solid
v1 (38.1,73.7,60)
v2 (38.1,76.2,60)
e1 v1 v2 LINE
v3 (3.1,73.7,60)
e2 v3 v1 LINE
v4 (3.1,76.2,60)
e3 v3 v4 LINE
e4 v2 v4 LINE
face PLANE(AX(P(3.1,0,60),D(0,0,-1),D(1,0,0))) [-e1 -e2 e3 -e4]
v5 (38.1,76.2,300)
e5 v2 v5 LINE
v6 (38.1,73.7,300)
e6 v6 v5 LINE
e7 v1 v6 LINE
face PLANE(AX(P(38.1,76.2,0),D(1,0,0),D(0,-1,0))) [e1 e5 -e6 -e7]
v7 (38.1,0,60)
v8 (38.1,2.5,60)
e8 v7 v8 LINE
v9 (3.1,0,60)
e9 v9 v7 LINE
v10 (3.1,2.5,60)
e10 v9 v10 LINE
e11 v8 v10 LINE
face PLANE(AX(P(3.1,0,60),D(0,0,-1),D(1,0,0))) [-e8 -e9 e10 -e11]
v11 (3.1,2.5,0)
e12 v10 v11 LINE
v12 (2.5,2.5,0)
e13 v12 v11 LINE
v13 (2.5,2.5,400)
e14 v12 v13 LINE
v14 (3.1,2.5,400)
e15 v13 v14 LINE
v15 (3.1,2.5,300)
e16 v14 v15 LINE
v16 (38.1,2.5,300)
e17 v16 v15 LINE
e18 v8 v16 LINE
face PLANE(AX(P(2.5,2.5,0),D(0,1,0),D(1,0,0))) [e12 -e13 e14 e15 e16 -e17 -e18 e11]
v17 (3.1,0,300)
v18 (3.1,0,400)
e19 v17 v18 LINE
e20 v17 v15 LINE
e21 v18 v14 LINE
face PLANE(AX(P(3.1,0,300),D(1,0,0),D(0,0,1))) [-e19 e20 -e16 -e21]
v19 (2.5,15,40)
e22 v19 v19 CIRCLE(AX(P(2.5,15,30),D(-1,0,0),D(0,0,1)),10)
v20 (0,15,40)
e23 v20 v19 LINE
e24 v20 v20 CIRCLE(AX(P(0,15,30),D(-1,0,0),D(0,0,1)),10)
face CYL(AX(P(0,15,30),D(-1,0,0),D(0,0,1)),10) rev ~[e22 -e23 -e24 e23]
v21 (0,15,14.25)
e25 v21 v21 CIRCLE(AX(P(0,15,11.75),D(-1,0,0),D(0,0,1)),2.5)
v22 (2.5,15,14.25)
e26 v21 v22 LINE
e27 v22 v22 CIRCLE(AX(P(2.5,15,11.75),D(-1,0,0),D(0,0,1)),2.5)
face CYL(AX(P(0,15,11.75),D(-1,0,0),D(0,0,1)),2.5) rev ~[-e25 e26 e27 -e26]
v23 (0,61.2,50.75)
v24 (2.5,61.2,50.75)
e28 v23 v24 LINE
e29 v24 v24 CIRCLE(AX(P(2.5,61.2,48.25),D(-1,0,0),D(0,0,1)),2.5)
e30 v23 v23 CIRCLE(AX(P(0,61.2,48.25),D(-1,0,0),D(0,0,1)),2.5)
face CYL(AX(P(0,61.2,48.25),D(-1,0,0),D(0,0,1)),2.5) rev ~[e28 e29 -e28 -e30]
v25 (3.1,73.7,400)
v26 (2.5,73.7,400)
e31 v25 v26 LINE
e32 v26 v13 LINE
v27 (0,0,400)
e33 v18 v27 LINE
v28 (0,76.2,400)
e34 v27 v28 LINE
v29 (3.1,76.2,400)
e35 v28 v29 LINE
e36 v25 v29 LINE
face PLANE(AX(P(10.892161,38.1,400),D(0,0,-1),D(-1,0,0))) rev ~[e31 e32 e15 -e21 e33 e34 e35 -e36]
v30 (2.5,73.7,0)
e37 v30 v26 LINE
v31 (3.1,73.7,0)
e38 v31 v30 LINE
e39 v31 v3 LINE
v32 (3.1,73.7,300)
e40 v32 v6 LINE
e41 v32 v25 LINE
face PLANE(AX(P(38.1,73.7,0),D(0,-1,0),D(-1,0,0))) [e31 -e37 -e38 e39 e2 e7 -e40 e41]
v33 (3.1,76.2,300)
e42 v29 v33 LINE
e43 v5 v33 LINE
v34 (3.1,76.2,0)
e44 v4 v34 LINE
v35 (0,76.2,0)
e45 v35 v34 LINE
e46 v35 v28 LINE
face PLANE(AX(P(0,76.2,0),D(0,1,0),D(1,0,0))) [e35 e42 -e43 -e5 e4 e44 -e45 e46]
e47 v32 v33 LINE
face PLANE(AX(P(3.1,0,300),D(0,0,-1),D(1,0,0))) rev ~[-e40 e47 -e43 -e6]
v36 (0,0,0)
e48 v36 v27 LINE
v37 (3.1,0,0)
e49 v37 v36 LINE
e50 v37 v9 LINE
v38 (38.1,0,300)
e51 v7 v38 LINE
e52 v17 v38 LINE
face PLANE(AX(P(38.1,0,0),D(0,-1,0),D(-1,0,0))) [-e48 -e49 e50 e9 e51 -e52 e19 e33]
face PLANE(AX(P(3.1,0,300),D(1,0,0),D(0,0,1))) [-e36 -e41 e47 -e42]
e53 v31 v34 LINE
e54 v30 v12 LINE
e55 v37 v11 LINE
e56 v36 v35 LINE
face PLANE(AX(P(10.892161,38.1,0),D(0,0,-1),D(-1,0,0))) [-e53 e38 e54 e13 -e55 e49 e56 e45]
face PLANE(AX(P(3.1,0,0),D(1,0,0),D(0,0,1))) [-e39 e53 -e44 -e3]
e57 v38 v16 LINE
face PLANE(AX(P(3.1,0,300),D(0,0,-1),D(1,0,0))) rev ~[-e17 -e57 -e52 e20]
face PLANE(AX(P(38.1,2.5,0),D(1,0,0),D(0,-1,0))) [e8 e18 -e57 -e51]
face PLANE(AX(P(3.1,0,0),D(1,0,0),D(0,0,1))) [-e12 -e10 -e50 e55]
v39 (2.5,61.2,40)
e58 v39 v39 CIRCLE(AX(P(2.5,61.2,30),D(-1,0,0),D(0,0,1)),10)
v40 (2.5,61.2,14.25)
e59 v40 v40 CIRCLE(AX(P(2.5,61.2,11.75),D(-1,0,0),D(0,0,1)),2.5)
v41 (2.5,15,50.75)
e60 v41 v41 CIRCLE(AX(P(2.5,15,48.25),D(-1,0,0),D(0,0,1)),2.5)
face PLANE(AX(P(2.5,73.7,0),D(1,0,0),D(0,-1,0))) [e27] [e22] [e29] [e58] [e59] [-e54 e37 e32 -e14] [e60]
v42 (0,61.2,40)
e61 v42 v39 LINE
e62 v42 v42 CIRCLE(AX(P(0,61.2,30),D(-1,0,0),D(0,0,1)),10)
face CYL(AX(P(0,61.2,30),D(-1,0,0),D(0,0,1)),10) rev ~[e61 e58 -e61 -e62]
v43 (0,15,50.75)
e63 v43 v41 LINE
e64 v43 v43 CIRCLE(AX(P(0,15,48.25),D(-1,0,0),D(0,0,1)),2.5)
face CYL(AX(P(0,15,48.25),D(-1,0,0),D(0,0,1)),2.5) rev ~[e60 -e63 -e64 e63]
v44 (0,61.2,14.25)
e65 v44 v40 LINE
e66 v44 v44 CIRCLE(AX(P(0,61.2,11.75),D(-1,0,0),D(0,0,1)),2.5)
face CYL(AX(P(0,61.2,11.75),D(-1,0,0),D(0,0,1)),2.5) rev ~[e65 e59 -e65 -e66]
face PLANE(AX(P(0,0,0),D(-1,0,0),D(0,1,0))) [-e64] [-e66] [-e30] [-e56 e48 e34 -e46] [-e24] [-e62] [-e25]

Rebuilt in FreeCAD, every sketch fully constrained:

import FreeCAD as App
import Part
import Sketcher

V = App.Vector

doc = App.newDocument("Part")
params = doc.addObject("Spreadsheet::Sheet", "Params")
for row, (alias, value) in enumerate([
    ("sketch1_width", "38.1 mm"),
    ("sketch1_width2", "35.6 mm"),
    ("sketch1_height", "76.2 mm"),
    ("sketch1_height2", "2.5 mm"),
    ("pad1_length", "400 mm"),
    ("sketch2_diameter", "20 mm"),
    ("sketch2_diameter2", "5 mm"),
    ("sketch3_width", "35 mm"),
    ("sketch3_height", "60 mm"),
    ("sketch3_height2", "100 mm"),
], start=1):
    params.set(f"A{row}", alias)
    params.set(f"B{row}", "=" + value)
    params.setAlias(f"B{row}", alias)

body = doc.addObject("PartDesign::Body", "Body")

sketch1 = body.newObject("Sketcher::SketchObject", "Sketch")
sketch1.AttachmentSupport = (doc.getObject("XY_Plane"), [""])
sketch1.MapMode = "FlatFace"
sketch1.addGeometry([
    Part.LineSegment(V(0, 76.2, 0), V(0, 0, 0)),
    Part.LineSegment(V(0, 0, 0), V(38.1, 0, 0)),
    Part.LineSegment(V(38.1, 0, 0), V(38.1, 2.5, 0)),
    Part.LineSegment(V(38.1, 2.5, 0), V(2.5, 2.5, 0)),
    Part.LineSegment(V(2.5, 2.5, 0), V(2.5, 73.7, 0)),
    Part.LineSegment(V(2.5, 73.7, 0), V(38.1, 73.7, 0)),
    Part.LineSegment(V(38.1, 73.7, 0), V(38.1, 76.2, 0)),
    Part.LineSegment(V(38.1, 76.2, 0), V(0, 76.2, 0)),
], False)
sketch1.addConstraint([
    Sketcher.Constraint("Coincident", 0, 2, 1, 1),
    Sketcher.Constraint("Coincident", 1, 2, 2, 1),
    Sketcher.Constraint("Coincident", 2, 2, 3, 1),
    Sketcher.Constraint("Coincident", 3, 2, 4, 1),
    Sketcher.Constraint("Coincident", 4, 2, 5, 1),
    Sketcher.Constraint("Coincident", 5, 2, 6, 1),
    Sketcher.Constraint("Coincident", 6, 2, 7, 1),
    Sketcher.Constraint("Coincident", 7, 2, 0, 1),
    Sketcher.Constraint("Vertical", 0),
    Sketcher.Constraint("Horizontal", 1),
    Sketcher.Constraint("Vertical", 2),
    Sketcher.Constraint("Horizontal", 3),
    Sketcher.Constraint("Vertical", 4),
    Sketcher.Constraint("Horizontal", 5),
    Sketcher.Constraint("Vertical", 6),
    Sketcher.Constraint("Horizontal", 7),
    Sketcher.Constraint("Coincident", 0, 2, -1, 1),
    Sketcher.Constraint("Vertical", 2, 2, 5, 2),
    Sketcher.Constraint("Equal", 2, 6),
    Sketcher.Constraint("DistanceX", 1, 1, 1, 2, 38.1),
    Sketcher.Constraint("DistanceX", 3, 2, 3, 1, 35.6),
    Sketcher.Constraint("DistanceY", 0, 2, 0, 1, 76.2),
    Sketcher.Constraint("DistanceY", 2, 1, 2, 2, 2.5),
])
sketch1.setExpression("Constraints[19]", "Params.sketch1_width")
sketch1.setExpression("Constraints[20]", "Params.sketch1_width2")
sketch1.setExpression("Constraints[21]", "Params.sketch1_height")
sketch1.setExpression("Constraints[22]", "Params.sketch1_height2")
pad1 = body.newObject("PartDesign::Pad", "Pad")
pad1.Profile = sketch1
pad1.setExpression("Length", "Params.pad1_length")

sketch2 = body.newObject("Sketcher::SketchObject", "Sketch001")
sketch2.AttachmentSupport = (doc.getObject("YZ_Plane"), [""])
sketch2.MapMode = "FlatFace"
sketch2.addGeometry([
    Part.Circle(V(15, 30, 0), V(0, 0, 1), 10),
    Part.Circle(V(61.2, 30, 0), V(0, 0, 1), 10),
    Part.Circle(V(15, 11.8, 0), V(0, 0, 1), 2.5),
    Part.Circle(V(15, 48.2, 0), V(0, 0, 1), 2.5),
    Part.Circle(V(61.2, 48.2, 0), V(0, 0, 1), 2.5),
    Part.Circle(V(61.2, 11.8, 0), V(0, 0, 1), 2.5),
], False)
sketch2.addConstraint([
    Sketcher.Constraint("Equal", 0, 1),
    Sketcher.Constraint("Equal", 2, 3),
    Sketcher.Constraint("Equal", 3, 4),
    Sketcher.Constraint("Equal", 4, 5),
    Sketcher.Constraint("Horizontal", 0, 3, 1, 3),
    Sketcher.Constraint("Horizontal", 3, 3, 4, 3),
    Sketcher.Constraint("Horizontal", 2, 3, 5, 3),
    Sketcher.Constraint("Vertical", 0, 3, 2, 3),
    Sketcher.Constraint("Vertical", 2, 3, 3, 3),
    Sketcher.Constraint("Vertical", 1, 3, 4, 3),
    Sketcher.Constraint("Vertical", 4, 3, 5, 3),
    Sketcher.Constraint("Diameter", 0, 20.0),
    Sketcher.Constraint("Diameter", 2, 5.0),
    Sketcher.Constraint("DistanceX", -1, 1, 0, 3, 15.0),
    Sketcher.Constraint("DistanceY", -1, 1, 0, 3, 30.0),
    Sketcher.Constraint("DistanceX", -1, 1, 1, 3, 61.2),
    Sketcher.Constraint("DistanceY", 2, 3, 3, 3, 36.5),
    Sketcher.Constraint("DistanceY", -1, 1, 2, 3, 11.75),
])
sketch2.setExpression("Constraints[11]", "Params.sketch2_diameter")
sketch2.setExpression("Constraints[12]", "Params.sketch2_diameter2")
pocket1 = body.newObject("PartDesign::Pocket", "Pocket")
pocket1.Profile = sketch2
pocket1.Type = "ThroughAll"
pocket1.Reversed = True

sketch3 = body.newObject("Sketcher::SketchObject", "Sketch002")
sketch3.AttachmentSupport = (doc.getObject("XZ_Plane"), [""])
sketch3.MapMode = "FlatFace"
sketch3.addGeometry([
    Part.LineSegment(V(3, 60, 0), V(3, 0, 0)),
    Part.LineSegment(V(3, 0, 0), V(38, 0, 0)),
    Part.LineSegment(V(38, 0, 0), V(38, 60, 0)),
    Part.LineSegment(V(38, 60, 0), V(3, 60, 0)),
    Part.LineSegment(V(3, 400, 0), V(3, 300, 0)),
    Part.LineSegment(V(3, 300, 0), V(38, 300, 0)),
    Part.LineSegment(V(38, 300, 0), V(38, 400, 0)),
    Part.LineSegment(V(38, 400, 0), V(3, 400, 0)),
], False)
sketch3.addConstraint([
    Sketcher.Constraint("Coincident", 0, 2, 1, 1),
    Sketcher.Constraint("Coincident", 1, 2, 2, 1),
    Sketcher.Constraint("Coincident", 2, 2, 3, 1),
    Sketcher.Constraint("Coincident", 3, 2, 0, 1),
    Sketcher.Constraint("Coincident", 4, 2, 5, 1),
    Sketcher.Constraint("Coincident", 5, 2, 6, 1),
    Sketcher.Constraint("Coincident", 6, 2, 7, 1),
    Sketcher.Constraint("Coincident", 7, 2, 4, 1),
    Sketcher.Constraint("Vertical", 0),
    Sketcher.Constraint("Horizontal", 1),
    Sketcher.Constraint("Vertical", 2),
    Sketcher.Constraint("Horizontal", 3),
    Sketcher.Constraint("Vertical", 4),
    Sketcher.Constraint("Horizontal", 5),
    Sketcher.Constraint("Vertical", 6),
    Sketcher.Constraint("Horizontal", 7),
    Sketcher.Constraint("PointOnObject", 0, 2, -1),
    Sketcher.Constraint("Vertical", 3, 2, 4, 2),
    Sketcher.Constraint("Vertical", 2, 2, 5, 2),
    Sketcher.Constraint("DistanceX", 1, 1, 1, 2, 35.0),
    Sketcher.Constraint("DistanceY", 0, 2, 0, 1, 60.0),
    Sketcher.Constraint("DistanceY", 4, 2, 4, 1, 100.0),
    Sketcher.Constraint("DistanceY", -1, 1, 4, 2, 300.0),
    Sketcher.Constraint("DistanceX", -1, 1, 0, 2, 3.1),
])
sketch3.setExpression("Constraints[19]", "Params.sketch3_width")
sketch3.setExpression("Constraints[20]", "Params.sketch3_height")
sketch3.setExpression("Constraints[21]", "Params.sketch3_height2")
pocket2 = body.newObject("PartDesign::Pocket", "Pocket001")
pocket2.Profile = sketch3
pocket2.Type = "ThroughAll"

doc.recompute()
